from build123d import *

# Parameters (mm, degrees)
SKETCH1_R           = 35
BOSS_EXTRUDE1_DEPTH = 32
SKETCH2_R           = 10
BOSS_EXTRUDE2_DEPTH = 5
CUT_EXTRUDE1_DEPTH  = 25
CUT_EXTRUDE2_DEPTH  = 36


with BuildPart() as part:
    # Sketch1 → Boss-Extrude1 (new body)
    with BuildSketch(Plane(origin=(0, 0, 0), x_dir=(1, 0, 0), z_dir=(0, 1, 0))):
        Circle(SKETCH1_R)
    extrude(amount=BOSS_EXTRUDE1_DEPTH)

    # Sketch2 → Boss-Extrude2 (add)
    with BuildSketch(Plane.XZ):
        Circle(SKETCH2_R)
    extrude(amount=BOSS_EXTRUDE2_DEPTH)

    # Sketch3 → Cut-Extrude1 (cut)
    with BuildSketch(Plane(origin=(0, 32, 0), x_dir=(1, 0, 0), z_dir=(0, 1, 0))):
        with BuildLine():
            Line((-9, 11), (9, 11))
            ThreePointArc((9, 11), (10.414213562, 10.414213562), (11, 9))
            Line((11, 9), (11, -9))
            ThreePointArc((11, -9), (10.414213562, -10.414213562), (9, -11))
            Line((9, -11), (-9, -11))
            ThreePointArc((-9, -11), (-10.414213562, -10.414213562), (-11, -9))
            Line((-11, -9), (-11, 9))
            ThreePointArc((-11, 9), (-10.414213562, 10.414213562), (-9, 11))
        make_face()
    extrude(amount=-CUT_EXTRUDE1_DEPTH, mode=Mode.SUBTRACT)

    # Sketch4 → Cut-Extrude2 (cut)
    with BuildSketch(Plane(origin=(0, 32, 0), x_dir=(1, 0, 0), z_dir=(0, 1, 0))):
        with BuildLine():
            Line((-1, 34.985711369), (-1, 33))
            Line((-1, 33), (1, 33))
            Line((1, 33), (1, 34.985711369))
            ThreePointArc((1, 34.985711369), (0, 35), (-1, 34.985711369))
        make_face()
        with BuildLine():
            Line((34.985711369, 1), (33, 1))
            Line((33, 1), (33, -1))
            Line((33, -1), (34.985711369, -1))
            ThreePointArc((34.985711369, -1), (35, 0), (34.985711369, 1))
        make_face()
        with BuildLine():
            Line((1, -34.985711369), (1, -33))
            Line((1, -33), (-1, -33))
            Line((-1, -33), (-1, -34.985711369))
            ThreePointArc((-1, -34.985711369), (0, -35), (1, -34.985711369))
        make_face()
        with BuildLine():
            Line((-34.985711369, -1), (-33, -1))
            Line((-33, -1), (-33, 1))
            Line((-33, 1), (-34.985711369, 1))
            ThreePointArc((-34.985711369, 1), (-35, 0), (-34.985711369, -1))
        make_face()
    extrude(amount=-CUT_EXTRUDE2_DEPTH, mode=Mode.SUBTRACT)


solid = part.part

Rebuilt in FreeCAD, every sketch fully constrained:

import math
import FreeCAD as App
import Part
import Sketcher

V = App.Vector
Q = App.Units.Quantity

doc = App.newDocument("Part")
body = doc.addObject("PartDesign::Body", "Body")

# Sketch on XZ plane
sketch1 = body.newObject("Sketcher::SketchObject", "Sketch")
sketch1.AttachmentSupport = (doc.getObject("XZ_Plane"), [""])
sketch1.MapMode = "FlatFace"
sketch1.addGeometry(Part.Circle(V(0, 0, 0), V(0, 0, 1), 35), False)
sketch1.addConstraint(Sketcher.Constraint("Coincident", 0, 3, -1, 1))
sketch1.addConstraint(Sketcher.Constraint("Diameter", 0, Q("70 mm")))
pad1 = body.newObject("PartDesign::Pad", "Pad")
pad1.Profile = sketch1
pad1.Length = 32
pad1.Reversed = True

# Sketch on XZ plane
sketch2 = body.newObject("Sketcher::SketchObject", "Sketch001")
sketch2.AttachmentSupport = (doc.getObject("XZ_Plane"), [""])
sketch2.MapMode = "FlatFace"
sketch2.addGeometry(Part.Circle(V(0, 0, 0), V(0, 0, 1), 10), False)
sketch2.addConstraint(Sketcher.Constraint("Coincident", 0, 3, -1, 1))
sketch2.addConstraint(Sketcher.Constraint("Diameter", 0, Q("20 mm")))
pad2 = body.newObject("PartDesign::Pad", "Pad001")
pad2.Profile = sketch2
pad2.Length = 5

# Sketch on XZ plane
sketch3 = body.newObject("Sketcher::SketchObject", "Sketch002")
sketch3.AttachmentSupport = (doc.getObject("XZ_Plane"), [""])
sketch3.MapMode = "FlatFace"
sketch3.AttachmentOffset = App.Placement(V(0, 0, -32), App.Rotation())
sketch3.addGeometry(Part.LineSegment(V(9, -11, 0), V(-9, -11, 0)), False)
sketch3.addGeometry(Part.ArcOfCircle(Part.Circle(V(-9, -9, 0), V(0, 0, 1), 2), math.radians(-180), math.radians(-90)), False)
sketch3.addGeometry(Part.LineSegment(V(-11, -9, 0), V(-11, 9, 0)), False)
sketch3.addGeometry(Part.ArcOfCircle(Part.Circle(V(-9, 9, 0), V(0, 0, 1), 2), math.radians(90), math.radians(180)), False)
sketch3.addGeometry(Part.LineSegment(V(-9, 11, 0), V(9, 11, 0)), False)
sketch3.addGeometry(Part.ArcOfCircle(Part.Circle(V(9, 9, 0), V(0, 0, 1), 2), math.radians(0), math.radians(90)), False)
sketch3.addGeometry(Part.LineSegment(V(11, 9, 0), V(11, -9, 0)), False)
sketch3.addGeometry(Part.ArcOfCircle(Part.Circle(V(9, -9, 0), V(0, 0, 1), 2), math.radians(-90), math.radians(0)), False)
sketch3.addConstraint(Sketcher.Constraint("Tangent", 0, 2, 1, 2))
sketch3.addConstraint(Sketcher.Constraint("Tangent", 1, 1, 2, 1))
sketch3.addConstraint(Sketcher.Constraint("Tangent", 2, 2, 3, 2))
sketch3.addConstraint(Sketcher.Constraint("Tangent", 3, 1, 4, 1))
sketch3.addConstraint(Sketcher.Constraint("Tangent", 4, 2, 5, 2))
sketch3.addConstraint(Sketcher.Constraint("Tangent", 5, 1, 6, 1))
sketch3.addConstraint(Sketcher.Constraint("Tangent", 6, 2, 7, 2))
sketch3.addConstraint(Sketcher.Constraint("Tangent", 7, 1, 0, 1))
sketch3.addConstraint(Sketcher.Constraint("Horizontal", 0))
sketch3.addConstraint(Sketcher.Constraint("Vertical", 2))
sketch3.addConstraint(Sketcher.Constraint("Horizontal", 4))
sketch3.addConstraint(Sketcher.Constraint("Vertical", 6))
sketch3.addConstraint(Sketcher.Constraint("Equal", 1, 3))
sketch3.addConstraint(Sketcher.Constraint("Equal", 3, 5))
sketch3.addConstraint(Sketcher.Constraint("Equal", 5, 7))
sketch3.addConstraint(Sketcher.Constraint("Symmetric", 1, 3, 5, 3, -1, 1))
sketch3.addConstraint(Sketcher.Constraint("Equal", 4, 2))
sketch3.addConstraint(Sketcher.Constraint("Radius", 1, Q("2 mm")))
sketch3.addConstraint(Sketcher.Constraint("DistanceX", 0, 2, 0, 1, Q("18 mm")))
pocket1 = body.newObject("PartDesign::Pocket", "Pocket")
pocket1.Profile = sketch3
pocket1.Length = 25
pocket1.Reversed = True

# Sketch on XZ plane
sketch4 = body.newObject("Sketcher::SketchObject", "Sketch003")
sketch4.AttachmentSupport = (doc.getObject("XZ_Plane"), [""])
sketch4.MapMode = "FlatFace"
sketch4.AttachmentOffset = App.Placement(V(0, 0, -32), App.Rotation())
sketch4.addGeometry(Part.LineSegment(V(-1, -35, 0), V(-1, -33, 0)), False)
sketch4.addGeometry(Part.LineSegment(V(-1, -33, 0), V(1, -33, 0)), False)
sketch4.addGeometry(Part.LineSegment(V(1, -33, 0), V(1, -35, 0)), False)
sketch4.addGeometry(Part.ArcOfCircle(Part.Circle(V(0, 0, 0), V(0, 0, 1), 35), math.radians(-91.64), math.radians(-88.36)), False)
sketch4.addGeometry(Part.LineSegment(V(35, -1, 0), V(33, -1, 0)), False)
sketch4.addGeometry(Part.LineSegment(V(33, -1, 0), V(33, 1, 0)), False)
sketch4.addGeometry(Part.LineSegment(V(33, 1, 0), V(35, 1, 0)), False)
sketch4.addGeometry(Part.ArcOfCircle(Part.Circle(V(0, 0, 0), V(0, 0, 1), 35), math.radians(-1.64), math.radians(1.64)), False)
sketch4.addGeometry(Part.LineSegment(V(1, 35, 0), V(1, 33, 0)), False)
sketch4.addGeometry(Part.LineSegment(V(1, 33, 0), V(-1, 33, 0)), False)
sketch4.addGeometry(Part.LineSegment(V(-1, 33, 0), V(-1, 35, 0)), False)
sketch4.addGeometry(Part.ArcOfCircle(Part.Circle(V(0, 0, 0), V(0, 0, 1), 35), math.radians(88.36), math.radians(91.64)), False)
sketch4.addGeometry(Part.LineSegment(V(-35, 1, 0), V(-33, 1, 0)), False)
sketch4.addGeometry(Part.LineSegment(V(-33, 1, 0), V(-33, -1, 0)), False)
sketch4.addGeometry(Part.LineSegment(V(-33, -1, 0), V(-35, -1, 0)), False)
sketch4.addGeometry(Part.ArcOfCircle(Part.Circle(V(0, 0, 0), V(0, 0, 1), 35), math.radians(178.36), math.radians(181.64)), False)
sketch4.addConstraint(Sketcher.Constraint("Coincident", 0, 2, 1, 1))
sketch4.addConstraint(Sketcher.Constraint("Coincident", 1, 2, 2, 1))
sketch4.addConstraint(Sketcher.Constraint("Coincident", 2, 2, 3, 2))
sketch4.addConstraint(Sketcher.Constraint("Coincident", 3, 1, 0, 1))
sketch4.addConstraint(Sketcher.Constraint("Coincident", 4, 2, 5, 1))
sketch4.addConstraint(Sketcher.Constraint("Coincident", 5, 2, 6, 1))
sketch4.addConstraint(Sketcher.Constraint("Coincident", 6, 2, 7, 2))
sketch4.addConstraint(Sketcher.Constraint("Coincident", 7, 1, 4, 1))
sketch4.addConstraint(Sketcher.Constraint("Coincident", 8, 2, 9, 1))
sketch4.addConstraint(Sketcher.Constraint("Coincident", 9, 2, 10, 1))
sketch4.addConstraint(Sketcher.Constraint("Coincident", 10, 2, 11, 2))
sketch4.addConstraint(Sketcher.Constraint("Coincident", 11, 1, 8, 1))
sketch4.addConstraint(Sketcher.Constraint("Coincident", 12, 2, 13, 1))
sketch4.addConstraint(Sketcher.Constraint("Coincident", 13, 2, 14, 1))
sketch4.addConstraint(Sketcher.Constraint("Coincident", 14, 2, 15, 2))
sketch4.addConstraint(Sketcher.Constraint("Coincident", 15, 1, 12, 1))
sketch4.addConstraint(Sketcher.Constraint("Vertical", 0))
sketch4.addConstraint(Sketcher.Constraint("Horizontal", 1))
sketch4.addConstraint(Sketcher.Constraint("Vertical", 2))
sketch4.addConstraint(Sketcher.Constraint("Horizontal", 4))
sketch4.addConstraint(Sketcher.Constraint("Vertical", 5))
sketch4.addConstraint(Sketcher.Constraint("Horizontal", 6))
sketch4.addConstraint(Sketcher.Constraint("Vertical", 8))
sketch4.addConstraint(Sketcher.Constraint("Horizontal", 9))
sketch4.addConstraint(Sketcher.Constraint("Vertical", 10))
sketch4.addConstraint(Sketcher.Constraint("Horizontal", 12))
sketch4.addConstraint(Sketcher.Constraint("Vertical", 13))
sketch4.addConstraint(Sketcher.Constraint("Horizontal", 14))
sketch4.addConstraint(Sketcher.Constraint("Coincident", 3, 3, -1, 1))
sketch4.addConstraint(Sketcher.Constraint("Coincident", 7, 3, -1, 1))
sketch4.addConstraint(Sketcher.Constraint("Coincident", 11, 3, -1, 1))
sketch4.addConstraint(Sketcher.Constraint("Coincident", 15, 3, -1, 1))
sketch4.addConstraint(Sketcher.Constraint("Equal", 3, 7))
sketch4.addConstraint(Sketcher.Constraint("Equal", 7, 11))
sketch4.addConstraint(Sketcher.Constraint("Equal", 11, 15))
sketch4.addConstraint(Sketcher.Constraint("Symmetric", 0, 2, 8, 2, -1, 1))
sketch4.addConstraint(Sketcher.Constraint("Symmetric", 4, 2, 12, 2, -1, 1))
sketch4.addConstraint(Sketcher.Constraint("Horizontal", 2, 2, 3, 1))
sketch4.addConstraint(Sketcher.Constraint("Horizontal", 10, 2, 11, 1))
sketch4.addConstraint(Sketcher.Constraint("Horizontal", 6, 2, 12, 2))
sketch4.addConstraint(Sketcher.Constraint("Horizontal", 7, 1, 13, 2))
sketch4.addConstraint(Sketcher.Constraint("Equal", 14, 0))
sketch4.addConstraint(Sketcher.Constraint("Equal", 9, 5))
sketch4.addConstraint(Sketcher.Constraint("Radius", 3, Q("35 mm")))
sketch4.addConstraint(Sketcher.Constraint("DistanceX", 1, 1, 1, 2, Q("2 mm")))
sketch4.addConstraint(Sketcher.Constraint("DistanceY", 0, 2, -1, 1, Q("33 mm")))
pocket2 = body.newObject("PartDesign::Pocket", "Pocket001")
pocket2.Profile = sketch4
pocket2.Length = 36
pocket2.Reversed = True

doc.recompute()
